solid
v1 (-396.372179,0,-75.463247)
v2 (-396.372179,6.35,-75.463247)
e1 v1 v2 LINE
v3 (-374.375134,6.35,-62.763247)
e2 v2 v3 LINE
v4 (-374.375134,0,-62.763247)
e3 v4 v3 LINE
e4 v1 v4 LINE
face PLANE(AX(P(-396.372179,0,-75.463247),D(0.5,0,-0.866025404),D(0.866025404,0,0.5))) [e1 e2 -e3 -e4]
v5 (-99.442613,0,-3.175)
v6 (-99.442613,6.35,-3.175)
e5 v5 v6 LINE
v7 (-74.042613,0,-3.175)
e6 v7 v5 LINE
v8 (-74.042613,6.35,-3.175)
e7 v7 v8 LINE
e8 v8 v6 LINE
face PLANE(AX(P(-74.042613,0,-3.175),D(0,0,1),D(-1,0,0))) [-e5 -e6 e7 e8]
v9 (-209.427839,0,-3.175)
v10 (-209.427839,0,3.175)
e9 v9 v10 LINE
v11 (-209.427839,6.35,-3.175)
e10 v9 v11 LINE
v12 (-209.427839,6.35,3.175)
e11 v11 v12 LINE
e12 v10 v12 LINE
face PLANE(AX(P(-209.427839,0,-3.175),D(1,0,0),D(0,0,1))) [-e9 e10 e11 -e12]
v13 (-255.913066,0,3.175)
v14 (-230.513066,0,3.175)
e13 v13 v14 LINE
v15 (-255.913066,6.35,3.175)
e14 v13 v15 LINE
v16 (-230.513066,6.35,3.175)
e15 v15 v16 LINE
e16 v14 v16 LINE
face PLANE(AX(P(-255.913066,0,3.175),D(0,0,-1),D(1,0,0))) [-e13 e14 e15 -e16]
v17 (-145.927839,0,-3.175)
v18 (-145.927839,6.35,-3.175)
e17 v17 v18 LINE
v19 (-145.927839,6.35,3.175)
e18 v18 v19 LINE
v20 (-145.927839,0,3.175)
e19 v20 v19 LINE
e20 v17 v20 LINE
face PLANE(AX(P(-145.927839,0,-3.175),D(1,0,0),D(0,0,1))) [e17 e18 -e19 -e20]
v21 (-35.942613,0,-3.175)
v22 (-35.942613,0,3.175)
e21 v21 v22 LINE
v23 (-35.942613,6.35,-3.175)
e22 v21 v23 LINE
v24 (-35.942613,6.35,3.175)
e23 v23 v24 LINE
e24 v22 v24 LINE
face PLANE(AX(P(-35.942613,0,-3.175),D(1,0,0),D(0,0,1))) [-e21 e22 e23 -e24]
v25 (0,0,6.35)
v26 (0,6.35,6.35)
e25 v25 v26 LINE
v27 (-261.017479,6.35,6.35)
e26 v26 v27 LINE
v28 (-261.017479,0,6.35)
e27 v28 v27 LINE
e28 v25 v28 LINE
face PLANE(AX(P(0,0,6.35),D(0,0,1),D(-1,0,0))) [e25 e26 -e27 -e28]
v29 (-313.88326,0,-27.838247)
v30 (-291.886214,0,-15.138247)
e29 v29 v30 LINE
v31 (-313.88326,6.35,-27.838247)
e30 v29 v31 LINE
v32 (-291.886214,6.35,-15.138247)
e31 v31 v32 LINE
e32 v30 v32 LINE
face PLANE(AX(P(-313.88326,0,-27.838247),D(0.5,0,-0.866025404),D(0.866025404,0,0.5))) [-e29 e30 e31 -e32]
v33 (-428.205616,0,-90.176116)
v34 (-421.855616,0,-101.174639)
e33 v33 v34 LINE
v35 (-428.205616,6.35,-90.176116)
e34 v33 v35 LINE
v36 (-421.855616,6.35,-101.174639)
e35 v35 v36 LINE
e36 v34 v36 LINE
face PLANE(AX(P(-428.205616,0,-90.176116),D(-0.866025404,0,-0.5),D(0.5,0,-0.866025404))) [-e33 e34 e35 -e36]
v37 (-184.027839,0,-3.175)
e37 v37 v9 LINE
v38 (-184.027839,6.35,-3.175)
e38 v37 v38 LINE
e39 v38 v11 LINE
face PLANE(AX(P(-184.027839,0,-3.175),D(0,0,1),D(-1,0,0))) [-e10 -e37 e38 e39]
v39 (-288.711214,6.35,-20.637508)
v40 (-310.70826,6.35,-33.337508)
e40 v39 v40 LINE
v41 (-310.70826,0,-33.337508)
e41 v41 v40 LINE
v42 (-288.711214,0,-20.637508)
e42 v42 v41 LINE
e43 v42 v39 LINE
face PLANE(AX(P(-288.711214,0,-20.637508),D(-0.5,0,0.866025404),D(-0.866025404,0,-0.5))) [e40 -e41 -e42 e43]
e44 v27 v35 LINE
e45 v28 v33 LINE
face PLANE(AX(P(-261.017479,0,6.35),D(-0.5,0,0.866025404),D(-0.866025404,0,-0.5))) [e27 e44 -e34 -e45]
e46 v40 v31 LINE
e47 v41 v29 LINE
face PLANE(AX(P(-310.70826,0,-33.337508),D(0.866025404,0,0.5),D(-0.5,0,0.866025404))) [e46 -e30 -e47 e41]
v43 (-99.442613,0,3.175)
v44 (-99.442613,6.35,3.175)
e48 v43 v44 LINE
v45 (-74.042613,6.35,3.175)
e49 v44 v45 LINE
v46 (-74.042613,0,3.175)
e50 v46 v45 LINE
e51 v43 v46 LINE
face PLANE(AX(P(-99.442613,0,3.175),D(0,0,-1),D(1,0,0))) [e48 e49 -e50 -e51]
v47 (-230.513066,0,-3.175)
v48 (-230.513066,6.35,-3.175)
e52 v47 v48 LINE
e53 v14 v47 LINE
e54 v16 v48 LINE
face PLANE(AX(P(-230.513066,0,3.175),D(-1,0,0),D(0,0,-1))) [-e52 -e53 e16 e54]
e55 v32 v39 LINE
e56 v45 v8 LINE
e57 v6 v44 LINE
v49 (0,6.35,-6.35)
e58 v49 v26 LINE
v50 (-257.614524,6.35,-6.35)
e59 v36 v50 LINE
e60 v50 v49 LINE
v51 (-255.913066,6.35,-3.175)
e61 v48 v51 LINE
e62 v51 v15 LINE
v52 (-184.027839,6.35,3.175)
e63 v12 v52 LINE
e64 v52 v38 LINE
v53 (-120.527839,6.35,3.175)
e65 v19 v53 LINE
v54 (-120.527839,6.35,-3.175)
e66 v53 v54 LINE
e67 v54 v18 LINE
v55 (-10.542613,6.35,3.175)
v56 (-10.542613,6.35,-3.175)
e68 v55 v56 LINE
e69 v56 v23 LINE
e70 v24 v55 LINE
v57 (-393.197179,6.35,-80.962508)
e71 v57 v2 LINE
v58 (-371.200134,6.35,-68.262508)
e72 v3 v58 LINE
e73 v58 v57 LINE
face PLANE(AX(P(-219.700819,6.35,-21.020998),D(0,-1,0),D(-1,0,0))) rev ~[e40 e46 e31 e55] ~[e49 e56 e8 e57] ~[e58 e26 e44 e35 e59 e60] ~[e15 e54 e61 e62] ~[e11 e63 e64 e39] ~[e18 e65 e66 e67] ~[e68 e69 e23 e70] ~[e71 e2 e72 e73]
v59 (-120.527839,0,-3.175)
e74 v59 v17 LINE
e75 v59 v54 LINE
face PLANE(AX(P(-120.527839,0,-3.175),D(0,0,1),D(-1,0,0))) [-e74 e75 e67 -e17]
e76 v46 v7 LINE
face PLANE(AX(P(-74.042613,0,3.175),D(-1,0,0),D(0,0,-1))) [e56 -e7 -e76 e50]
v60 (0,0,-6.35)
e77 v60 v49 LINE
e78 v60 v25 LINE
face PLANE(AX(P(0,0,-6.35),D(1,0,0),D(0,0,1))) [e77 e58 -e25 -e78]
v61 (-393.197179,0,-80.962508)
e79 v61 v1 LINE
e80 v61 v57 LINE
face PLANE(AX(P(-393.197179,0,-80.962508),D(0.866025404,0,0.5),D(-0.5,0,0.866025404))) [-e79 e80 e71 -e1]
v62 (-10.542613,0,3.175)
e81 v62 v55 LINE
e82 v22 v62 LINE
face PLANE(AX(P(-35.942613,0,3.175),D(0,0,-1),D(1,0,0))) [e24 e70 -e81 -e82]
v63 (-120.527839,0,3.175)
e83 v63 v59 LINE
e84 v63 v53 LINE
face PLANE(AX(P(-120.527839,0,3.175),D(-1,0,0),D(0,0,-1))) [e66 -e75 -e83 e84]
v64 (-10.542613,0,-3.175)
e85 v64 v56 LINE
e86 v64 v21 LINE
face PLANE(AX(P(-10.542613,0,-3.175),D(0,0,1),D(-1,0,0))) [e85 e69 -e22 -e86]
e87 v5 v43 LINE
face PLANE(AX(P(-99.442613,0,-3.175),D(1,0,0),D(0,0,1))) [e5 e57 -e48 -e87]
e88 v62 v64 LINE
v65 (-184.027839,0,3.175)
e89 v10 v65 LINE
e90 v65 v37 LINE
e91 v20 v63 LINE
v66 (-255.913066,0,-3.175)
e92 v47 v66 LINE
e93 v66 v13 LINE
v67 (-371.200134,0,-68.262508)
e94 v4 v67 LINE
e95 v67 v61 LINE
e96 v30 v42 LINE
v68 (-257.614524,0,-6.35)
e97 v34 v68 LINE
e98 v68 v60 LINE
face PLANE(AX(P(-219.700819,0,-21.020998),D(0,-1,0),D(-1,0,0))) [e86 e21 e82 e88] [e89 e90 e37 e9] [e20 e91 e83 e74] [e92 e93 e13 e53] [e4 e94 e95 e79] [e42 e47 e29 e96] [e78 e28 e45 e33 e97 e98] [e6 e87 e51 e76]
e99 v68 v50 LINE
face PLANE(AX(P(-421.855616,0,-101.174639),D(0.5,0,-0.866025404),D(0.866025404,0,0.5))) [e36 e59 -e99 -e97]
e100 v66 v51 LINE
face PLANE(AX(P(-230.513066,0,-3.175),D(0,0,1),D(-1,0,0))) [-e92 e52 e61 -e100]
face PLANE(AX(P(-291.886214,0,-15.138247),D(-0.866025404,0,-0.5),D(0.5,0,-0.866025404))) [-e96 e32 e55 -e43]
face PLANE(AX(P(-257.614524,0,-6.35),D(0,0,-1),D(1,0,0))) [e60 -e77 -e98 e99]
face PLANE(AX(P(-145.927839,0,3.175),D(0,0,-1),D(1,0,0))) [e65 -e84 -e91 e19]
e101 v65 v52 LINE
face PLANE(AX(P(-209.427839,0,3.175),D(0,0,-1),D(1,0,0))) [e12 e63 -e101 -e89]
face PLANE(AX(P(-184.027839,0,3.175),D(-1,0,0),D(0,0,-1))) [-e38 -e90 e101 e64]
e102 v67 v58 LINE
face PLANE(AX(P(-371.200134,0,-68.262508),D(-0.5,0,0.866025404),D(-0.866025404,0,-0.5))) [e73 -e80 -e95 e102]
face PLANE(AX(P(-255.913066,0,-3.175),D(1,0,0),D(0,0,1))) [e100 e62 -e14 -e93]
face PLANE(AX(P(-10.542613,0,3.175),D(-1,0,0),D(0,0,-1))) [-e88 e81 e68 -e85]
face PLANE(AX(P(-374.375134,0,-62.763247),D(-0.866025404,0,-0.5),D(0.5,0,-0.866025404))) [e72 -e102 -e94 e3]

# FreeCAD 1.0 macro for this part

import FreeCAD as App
import Part
import Sketcher
Q = App.Units.Quantity


def add_polygon(sketch, points):
    """Adds a closed chain of lines whose ends are joined by coincident constraints."""
    first, n = sketch.GeometryCount, len(points)
    for a, b in zip(points, points[1:] + points[:1]):
        sketch.addGeometry(Part.LineSegment(App.Vector(*a, 0), App.Vector(*b, 0)), False)
    for i in range(n):
        sketch.addConstraint(Sketcher.Constraint("Coincident", first + i, 2, first + (i + 1) % n, 1))

doc = App.newDocument("Part")
body = doc.addObject("PartDesign::Body", "Body")

# Sketch on XZ plane
sketch1 = body.newObject("Sketcher::SketchObject", "Sketch")
sketch1.AttachmentSupport = (doc.getObject("XZ_Plane"), [""])
sketch1.MapMode = "FlatFace"
add_polygon(sketch1, [(-421.855616, -101.174639), (-428.205616, -90.176116), (-261.017479, 6.35), (0, 6.35), (0, -6.35), (-257.614524, -6.35)])  # lines 0-5
add_polygon(sketch1, [(-10.542613, 3.175), (-35.942613, 3.175), (-35.942613, -3.175), (-10.542613, -3.175)])  # lines 6-9
add_polygon(sketch1, [(-99.442613, -3.175), (-74.042613, -3.175), (-74.042613, 3.175), (-99.442613, 3.175)])  # lines 10-13
add_polygon(sketch1, [(-120.527839, 3.175), (-145.927839, 3.175), (-145.927839, -3.175), (-120.527839, -3.175)])  # lines 14-17
add_polygon(sketch1, [(-209.427839, -3.175), (-184.027839, -3.175), (-184.027839, 3.175), (-209.427839, 3.175)])  # lines 18-21
add_polygon(sketch1, [(-255.913066, -3.175), (-230.513066, -3.175), (-230.513066, 3.175), (-255.913066, 3.175)])  # lines 22-25
add_polygon(sketch1, [(-313.88326, -27.838247), (-310.70826, -33.337508), (-288.711214, -20.637508), (-291.886214, -15.138247)])  # lines 26-29
add_polygon(sketch1, [(-396.372179, -75.463247), (-393.197179, -80.962508), (-371.200134, -68.262508), (-374.375134, -62.763247)])  # lines 30-33
sketch1.addConstraint([
    Sketcher.Constraint("Horizontal", 2),
    Sketcher.Constraint("Vertical", 3),
    Sketcher.Constraint("Horizontal", 4),
    Sketcher.Constraint("Horizontal", 6),
    Sketcher.Constraint("Vertical", 7),
    Sketcher.Constraint("Horizontal", 8),
    Sketcher.Constraint("Vertical", 9),
    Sketcher.Constraint("Horizontal", 10),
    Sketcher.Constraint("Vertical", 11),
    Sketcher.Constraint("Horizontal", 12),
    Sketcher.Constraint("Vertical", 13),
    Sketcher.Constraint("Horizontal", 14),
    Sketcher.Constraint("Vertical", 15),
    Sketcher.Constraint("Horizontal", 16),
    Sketcher.Constraint("Vertical", 17),
    Sketcher.Constraint("Horizontal", 18),
    Sketcher.Constraint("Vertical", 19),
    Sketcher.Constraint("Horizontal", 20),
    Sketcher.Constraint("Vertical", 21),
    Sketcher.Constraint("Horizontal", 22),
    Sketcher.Constraint("Vertical", 23),
    Sketcher.Constraint("Horizontal", 24),
    Sketcher.Constraint("Vertical", 25),
    Sketcher.Constraint("Symmetric", 2, 2, 3, 2, -1, 1),
    Sketcher.Constraint("Perpendicular", 0, 1),
    Sketcher.Constraint("Parallel", 1, 5),
    Sketcher.Constraint("Perpendicular", 5, 26),
    Sketcher.Constraint("Perpendicular", 26, 27),
    Sketcher.Constraint("Perpendicular", 27, 28),
    Sketcher.Constraint("Perpendicular", 28, 29),
    Sketcher.Constraint("Perpendicular", 29, 30),
    Sketcher.Constraint("Perpendicular", 30, 31),
    Sketcher.Constraint("Perpendicular", 31, 32),
    Sketcher.Constraint("Perpendicular", 32, 33),
    Sketcher.Constraint("Horizontal", 8, 2, 10, 2),
    Sketcher.Constraint("Horizontal", 9, 2, 11, 2),
    Sketcher.Constraint("Horizontal", 12, 2, 14, 2),
    Sketcher.Constraint("Horizontal", 13, 2, 15, 2),
    Sketcher.Constraint("Horizontal", 16, 2, 18, 2),
    Sketcher.Constraint("Horizontal", 17, 2, 19, 2),
    Sketcher.Constraint("Horizontal", 21, 2, 22, 2),
    Sketcher.Constraint("Horizontal", 20, 2, 23, 2),
    Sketcher.Constraint("Equal", 8, 10),
    Sketcher.Constraint("Equal", 12, 14),
    Sketcher.Constraint("Equal", 16, 18),
    Sketcher.Constraint("Equal", 20, 22),
    Sketcher.Constraint("Equal", 28, 30),
    Sketcher.Constraint("Equal", 29, 31),
    Sketcher.Constraint("DistanceX", 6, 2, 6, 1, Q("1 in")),
    Sketcher.Constraint("Distance", 27, Q("1 in")),
    Sketcher.Constraint("DistanceY", 3, 2, 3, 1, Q("0.5 in")),
    Sketcher.Constraint("Angle", 0, Q("120 deg")),
    Sketcher.Constraint("Distance", 0, Q("0.5 in")),
    Sketcher.Constraint("DistanceY", 7, 2, 7, 1, Q("0.25 in")),
    Sketcher.Constraint("DistanceX", 10, 2, 7, 2, Q("1.5 in")),
    Sketcher.Constraint("DistanceX", 18, 2, 15, 2, Q("1.5 in")),
    Sketcher.Constraint("Distance", 26, Q("0.25 in")),
    Sketcher.Constraint("DistanceY", -1, 1, 6, 2, Q("0.125 in")),
    Sketcher.Constraint("DistanceY", 30, 2, 26, 2, Q("1.875 in")),
    Sketcher.Constraint("DistanceX", 2, 1, 2, 2, Q("261.017479 mm")),
    Sketcher.Constraint("Distance", 5, Q("189.649278 mm")),
    Sketcher.Constraint("DistanceX", 14, 2, -1, 1, Q("145.927839 mm")),
    Sketcher.Constraint("DistanceX", 26, 2, -1, 1, Q("310.70826 mm")),
    Sketcher.Constraint("DistanceY", 26, 2, -1, 1, Q("33.337508 mm")),
    Sketcher.Constraint("DistanceX", 30, 2, -1, 1, Q("393.197179 mm")),
    Sketcher.Constraint("DistanceX", 4, 2, 6, 2, Q("221.671911 mm")),
    Sketcher.Constraint("DistanceX", 4, 2, 22, 2, Q("27.101458 mm")),
])
pad1 = body.newObject("PartDesign::Pad", "Pad")
pad1.Profile = sketch1
pad1.Length = Q("0.25 in")
pad1.Reversed = True

doc.recompute()
